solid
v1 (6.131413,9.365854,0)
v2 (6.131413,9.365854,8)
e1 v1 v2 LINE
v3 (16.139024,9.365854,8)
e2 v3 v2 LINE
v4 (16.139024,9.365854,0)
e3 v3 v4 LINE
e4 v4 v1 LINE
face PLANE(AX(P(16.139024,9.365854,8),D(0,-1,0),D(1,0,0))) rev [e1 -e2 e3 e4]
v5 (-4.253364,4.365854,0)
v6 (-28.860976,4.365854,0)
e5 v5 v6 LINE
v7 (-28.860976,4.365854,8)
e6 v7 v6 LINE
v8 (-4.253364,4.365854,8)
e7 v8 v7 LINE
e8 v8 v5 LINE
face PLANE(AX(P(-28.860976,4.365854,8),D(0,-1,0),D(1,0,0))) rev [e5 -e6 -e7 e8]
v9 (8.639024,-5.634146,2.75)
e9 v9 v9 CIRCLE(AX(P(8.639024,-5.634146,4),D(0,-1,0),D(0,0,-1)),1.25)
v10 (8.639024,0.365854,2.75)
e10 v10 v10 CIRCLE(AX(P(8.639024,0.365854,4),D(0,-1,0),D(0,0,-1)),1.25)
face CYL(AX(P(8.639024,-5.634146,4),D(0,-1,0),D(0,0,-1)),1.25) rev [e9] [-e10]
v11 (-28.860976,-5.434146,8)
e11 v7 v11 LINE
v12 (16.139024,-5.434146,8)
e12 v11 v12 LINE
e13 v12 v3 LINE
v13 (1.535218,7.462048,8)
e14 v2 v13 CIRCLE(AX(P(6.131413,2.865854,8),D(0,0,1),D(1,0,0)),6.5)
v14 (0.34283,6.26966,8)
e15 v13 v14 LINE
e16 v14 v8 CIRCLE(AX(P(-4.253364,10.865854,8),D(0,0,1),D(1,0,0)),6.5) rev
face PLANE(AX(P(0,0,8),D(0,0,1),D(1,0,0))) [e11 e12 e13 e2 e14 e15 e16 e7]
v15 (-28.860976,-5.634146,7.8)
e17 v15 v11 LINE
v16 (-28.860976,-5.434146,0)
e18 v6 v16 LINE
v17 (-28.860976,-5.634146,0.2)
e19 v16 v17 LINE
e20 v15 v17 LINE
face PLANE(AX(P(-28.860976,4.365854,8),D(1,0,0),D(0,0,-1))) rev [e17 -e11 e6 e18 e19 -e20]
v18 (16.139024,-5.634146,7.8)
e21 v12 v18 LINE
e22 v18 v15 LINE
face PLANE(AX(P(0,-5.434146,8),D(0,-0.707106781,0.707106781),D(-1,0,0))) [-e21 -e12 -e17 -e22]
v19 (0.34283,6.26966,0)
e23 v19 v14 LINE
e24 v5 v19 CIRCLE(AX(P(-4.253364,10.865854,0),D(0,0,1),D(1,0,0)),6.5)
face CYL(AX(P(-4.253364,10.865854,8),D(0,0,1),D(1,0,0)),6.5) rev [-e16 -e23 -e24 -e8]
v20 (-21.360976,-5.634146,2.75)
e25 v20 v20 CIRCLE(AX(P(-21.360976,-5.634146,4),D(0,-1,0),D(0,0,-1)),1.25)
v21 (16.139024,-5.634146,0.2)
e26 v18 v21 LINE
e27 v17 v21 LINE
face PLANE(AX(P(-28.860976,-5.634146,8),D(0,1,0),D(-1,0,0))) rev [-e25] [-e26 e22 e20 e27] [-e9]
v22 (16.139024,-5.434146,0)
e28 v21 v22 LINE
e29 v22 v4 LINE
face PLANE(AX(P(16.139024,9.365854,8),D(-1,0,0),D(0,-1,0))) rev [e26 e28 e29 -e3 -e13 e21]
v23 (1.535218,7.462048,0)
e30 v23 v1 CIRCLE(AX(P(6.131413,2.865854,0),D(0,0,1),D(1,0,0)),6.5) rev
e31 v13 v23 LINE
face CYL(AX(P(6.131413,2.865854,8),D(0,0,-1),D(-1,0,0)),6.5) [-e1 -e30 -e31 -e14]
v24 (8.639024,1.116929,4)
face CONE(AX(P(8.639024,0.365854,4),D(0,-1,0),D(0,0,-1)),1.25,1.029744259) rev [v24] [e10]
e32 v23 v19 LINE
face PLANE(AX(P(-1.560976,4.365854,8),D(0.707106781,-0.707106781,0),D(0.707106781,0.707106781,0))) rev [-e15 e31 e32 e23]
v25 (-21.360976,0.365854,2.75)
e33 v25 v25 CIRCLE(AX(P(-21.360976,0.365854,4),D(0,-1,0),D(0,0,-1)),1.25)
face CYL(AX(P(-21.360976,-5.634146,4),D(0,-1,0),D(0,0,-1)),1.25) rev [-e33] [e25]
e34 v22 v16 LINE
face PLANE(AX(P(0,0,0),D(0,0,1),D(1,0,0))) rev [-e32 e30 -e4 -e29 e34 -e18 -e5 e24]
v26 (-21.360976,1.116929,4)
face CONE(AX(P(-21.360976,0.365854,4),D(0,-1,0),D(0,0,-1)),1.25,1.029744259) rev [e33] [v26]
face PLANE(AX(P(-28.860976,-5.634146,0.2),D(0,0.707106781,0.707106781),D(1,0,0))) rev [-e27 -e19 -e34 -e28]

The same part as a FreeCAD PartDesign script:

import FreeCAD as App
import Part
import Sketcher
from FreeCAD import Vector
Q = App.Units.Quantity


def edges_at(feature, points):
    """Names of the edges that pass closest to the given points."""
    edges = feature.Shape.Edges
    near = lambda p: min(range(len(edges)), key=lambda i: edges[i].distToShape(Part.Vertex(*p))[0])
    return sorted({f"Edge{near(p) + 1}" for p in points})


def add_polygon(sketch, points):
    """Adds a closed chain of lines whose ends are joined by coincident constraints."""
    first, n = sketch.GeometryCount, len(points)
    for a, b in zip(points, points[1:] + points[:1]):
        sketch.addGeometry(Part.LineSegment(App.Vector(*a, 0), App.Vector(*b, 0)), False)
    for i in range(n):
        sketch.addConstraint(Sketcher.Constraint("Coincident", first + i, 2, first + (i + 1) % n, 1))

doc = App.newDocument("Part")
body = doc.addObject("PartDesign::Body", "Body")

sketch1 = doc.addObject("Sketcher::SketchObject", "Sketch")
body.addObject(sketch1)
sketch1.AttachmentSupport = (doc.XY_Plane, [""])
sketch1.MapMode = "FlatFace"
add_polygon(sketch1, [(3, 9), (-2, 4), (-29, 4), (-29, -6), (16, -6), (16, 9)])
sketch1.addConstraint([
    Sketcher.Constraint("Horizontal", 1),
    Sketcher.Constraint("Vertical", 2),
    Sketcher.Constraint("Horizontal", 3),
    Sketcher.Constraint("Vertical", 4),
    Sketcher.Constraint("Horizontal", 5),
    Sketcher.Constraint("DistanceX", 3, 1, 3, 2, Q("45 mm")),
    Sketcher.Constraint("DistanceY", 2, 2, 2, 1, Q("10 mm")),
    Sketcher.Constraint("DistanceY", 4, 1, 4, 2, Q("15 mm")),
    Sketcher.Constraint("Angle", 0, Q("-135 deg")),
    Sketcher.Constraint("DistanceX", 1, 2, 1, 1, Q("27.3 mm")),
    Sketcher.Constraint("DistanceX", 0, 2, -1, 1, Q("1.560976 mm")),
    Sketcher.Constraint("DistanceY", -1, 1, 0, 2, Q("4.365854 mm")),
])
pad1 = doc.addObject("PartDesign::Pad", "Pad")
body.addObject(pad1)
pad1.Profile = sketch1
pad1.Length = 8
doc.recompute()

fillet = doc.addObject("PartDesign::Fillet", "Fillet")
body.addObject(fillet)
fillet.Base = (pad1, edges_at(pad1, [(-1.561, 4.366, 4), (3.439, 9.366, 4)]))
fillet.Radius = 6.5
doc.recompute()

chamfer = doc.addObject("PartDesign::Chamfer", "Chamfer")
body.addObject(chamfer)
chamfer.Base = (fillet, edges_at(fillet, [(-6.361, -5.634, 8), (-6.361, -5.634, 0)]))
chamfer.Size = 0.2

sketch2 = doc.addObject("Sketcher::SketchObject", "Sketch001")
body.addObject(sketch2)
sketch2.AttachmentSupport = (doc.XZ_Plane, [""])
sketch2.MapMode = "FlatFace"
sketch2.AttachmentOffset = App.Placement(Vector(0, 0, 5.634146), App.Rotation())
sketch2.addGeometry([
    Part.Circle(Vector(-21.4, 4, 0), Vector(0, 0, 1), 1.2),
    Part.Circle(Vector(8.6, 4, 0), Vector(0, 0, 1), 1.2),
], False)
sketch2.addConstraint([
    Sketcher.Constraint("Equal", 0, 1),
    Sketcher.Constraint("Horizontal", 0, 3, 1, 3),
    Sketcher.Constraint("Diameter", 0, Q("2.5 mm")),
    Sketcher.Constraint("DistanceY", -1, 1, 0, 3, Q("4 mm")),
    Sketcher.Constraint("DistanceX", 0, 3, 1, 3, Q("30 mm")),
    Sketcher.Constraint("DistanceX", 0, 3, -1, 1, Q("21.360976 mm")),
])
doc.recompute()
hole = doc.addObject("PartDesign::Hole", "Hole")
body.addObject(hole)
hole.Profile = sketch2
hole.ThreadType = "None"
hole.Diameter = 2.5
hole.DepthType = "Dimension"
hole.Depth = 6
hole.DrillPoint = "Angled"
hole.DrillPointAngle = 118

doc.recompute()
